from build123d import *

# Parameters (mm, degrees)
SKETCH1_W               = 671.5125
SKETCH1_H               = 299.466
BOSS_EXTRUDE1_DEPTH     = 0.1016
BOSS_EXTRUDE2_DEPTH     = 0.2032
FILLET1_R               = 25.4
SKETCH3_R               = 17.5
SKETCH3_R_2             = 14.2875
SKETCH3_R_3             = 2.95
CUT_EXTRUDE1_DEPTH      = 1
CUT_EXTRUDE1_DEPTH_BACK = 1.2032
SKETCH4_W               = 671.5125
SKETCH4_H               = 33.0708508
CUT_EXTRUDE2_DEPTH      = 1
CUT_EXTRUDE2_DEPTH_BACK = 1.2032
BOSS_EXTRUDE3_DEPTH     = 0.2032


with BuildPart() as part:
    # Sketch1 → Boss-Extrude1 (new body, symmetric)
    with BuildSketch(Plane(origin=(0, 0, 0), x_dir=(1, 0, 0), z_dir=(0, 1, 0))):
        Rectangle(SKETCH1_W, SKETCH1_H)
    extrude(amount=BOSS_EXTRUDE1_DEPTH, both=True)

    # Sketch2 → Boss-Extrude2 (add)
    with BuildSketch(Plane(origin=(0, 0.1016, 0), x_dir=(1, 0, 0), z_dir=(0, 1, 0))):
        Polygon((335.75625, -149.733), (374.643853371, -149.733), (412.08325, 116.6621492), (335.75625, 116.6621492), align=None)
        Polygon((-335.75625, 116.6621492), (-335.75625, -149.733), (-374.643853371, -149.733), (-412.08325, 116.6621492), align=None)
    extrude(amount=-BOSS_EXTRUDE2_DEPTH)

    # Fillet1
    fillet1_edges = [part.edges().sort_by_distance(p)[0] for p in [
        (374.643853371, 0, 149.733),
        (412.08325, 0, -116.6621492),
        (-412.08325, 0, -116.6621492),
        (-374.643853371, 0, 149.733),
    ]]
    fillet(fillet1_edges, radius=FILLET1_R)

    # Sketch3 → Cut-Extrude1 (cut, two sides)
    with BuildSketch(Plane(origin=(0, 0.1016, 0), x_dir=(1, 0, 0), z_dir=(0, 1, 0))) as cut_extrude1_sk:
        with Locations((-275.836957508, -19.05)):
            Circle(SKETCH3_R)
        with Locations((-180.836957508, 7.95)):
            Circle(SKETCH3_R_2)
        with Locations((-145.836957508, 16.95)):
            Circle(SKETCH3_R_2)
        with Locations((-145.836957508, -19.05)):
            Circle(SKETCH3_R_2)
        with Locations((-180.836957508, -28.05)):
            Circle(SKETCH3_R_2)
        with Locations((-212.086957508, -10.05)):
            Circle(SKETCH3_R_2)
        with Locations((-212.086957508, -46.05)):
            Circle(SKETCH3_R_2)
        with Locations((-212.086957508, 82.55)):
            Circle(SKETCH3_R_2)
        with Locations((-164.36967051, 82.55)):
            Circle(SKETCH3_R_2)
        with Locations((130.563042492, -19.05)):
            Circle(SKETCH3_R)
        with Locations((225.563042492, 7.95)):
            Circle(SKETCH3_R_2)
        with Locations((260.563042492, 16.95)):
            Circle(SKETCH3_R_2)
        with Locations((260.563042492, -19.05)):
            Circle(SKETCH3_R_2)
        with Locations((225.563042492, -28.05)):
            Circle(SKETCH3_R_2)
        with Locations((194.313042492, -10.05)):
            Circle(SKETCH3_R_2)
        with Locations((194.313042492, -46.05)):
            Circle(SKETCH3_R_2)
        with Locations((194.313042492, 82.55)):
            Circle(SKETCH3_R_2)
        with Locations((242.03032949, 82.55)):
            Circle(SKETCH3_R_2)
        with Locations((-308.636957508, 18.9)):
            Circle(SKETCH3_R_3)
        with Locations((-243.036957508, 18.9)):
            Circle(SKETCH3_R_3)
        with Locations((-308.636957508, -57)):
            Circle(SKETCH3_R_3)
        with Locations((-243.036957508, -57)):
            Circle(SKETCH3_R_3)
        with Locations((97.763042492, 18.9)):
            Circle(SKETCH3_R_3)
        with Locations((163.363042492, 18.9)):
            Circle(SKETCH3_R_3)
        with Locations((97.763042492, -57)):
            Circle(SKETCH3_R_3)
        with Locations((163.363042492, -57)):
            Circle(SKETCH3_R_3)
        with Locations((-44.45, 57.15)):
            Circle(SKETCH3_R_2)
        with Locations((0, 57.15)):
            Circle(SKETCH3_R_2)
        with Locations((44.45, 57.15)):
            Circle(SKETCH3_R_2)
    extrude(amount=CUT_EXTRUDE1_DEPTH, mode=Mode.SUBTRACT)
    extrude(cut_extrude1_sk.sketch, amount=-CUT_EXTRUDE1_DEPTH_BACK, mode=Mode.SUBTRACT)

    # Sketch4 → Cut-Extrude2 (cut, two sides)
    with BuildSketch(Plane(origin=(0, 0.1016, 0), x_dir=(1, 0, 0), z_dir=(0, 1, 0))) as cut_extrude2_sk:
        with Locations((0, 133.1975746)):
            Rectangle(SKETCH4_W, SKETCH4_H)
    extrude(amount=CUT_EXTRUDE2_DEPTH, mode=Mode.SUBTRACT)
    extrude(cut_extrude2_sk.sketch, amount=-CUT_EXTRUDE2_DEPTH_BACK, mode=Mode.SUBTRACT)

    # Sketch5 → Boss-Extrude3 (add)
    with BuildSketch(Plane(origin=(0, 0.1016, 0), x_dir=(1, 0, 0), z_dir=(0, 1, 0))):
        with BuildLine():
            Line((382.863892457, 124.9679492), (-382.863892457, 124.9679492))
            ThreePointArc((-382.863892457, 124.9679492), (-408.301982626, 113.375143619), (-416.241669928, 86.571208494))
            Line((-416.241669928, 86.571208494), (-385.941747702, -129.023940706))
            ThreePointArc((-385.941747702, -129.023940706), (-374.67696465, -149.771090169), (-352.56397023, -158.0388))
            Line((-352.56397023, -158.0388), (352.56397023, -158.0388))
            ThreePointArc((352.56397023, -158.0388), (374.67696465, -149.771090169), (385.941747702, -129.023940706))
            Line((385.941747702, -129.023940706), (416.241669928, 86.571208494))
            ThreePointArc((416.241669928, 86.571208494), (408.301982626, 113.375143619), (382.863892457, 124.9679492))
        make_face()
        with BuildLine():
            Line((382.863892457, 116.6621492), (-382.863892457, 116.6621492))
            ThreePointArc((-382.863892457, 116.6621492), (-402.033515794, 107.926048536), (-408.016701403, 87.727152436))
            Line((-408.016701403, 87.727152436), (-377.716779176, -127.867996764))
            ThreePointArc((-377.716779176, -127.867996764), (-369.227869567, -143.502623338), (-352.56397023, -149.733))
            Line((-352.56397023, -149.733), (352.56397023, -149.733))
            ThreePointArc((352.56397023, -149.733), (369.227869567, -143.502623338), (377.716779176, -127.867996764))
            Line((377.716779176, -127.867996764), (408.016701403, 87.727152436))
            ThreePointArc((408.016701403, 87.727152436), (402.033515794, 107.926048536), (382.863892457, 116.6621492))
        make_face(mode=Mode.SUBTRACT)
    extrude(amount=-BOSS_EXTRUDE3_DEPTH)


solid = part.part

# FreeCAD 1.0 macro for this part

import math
import FreeCAD as App
import Part
import Sketcher
Q = App.Units.Quantity


def edges_at(feature, points):
    """Names of the edges that pass closest to the given points."""
    edges = feature.Shape.Edges
    near = lambda p: min(range(len(edges)), key=lambda i: edges[i].distToShape(Part.Vertex(*p))[0])
    return sorted({f"Edge{near(p) + 1}" for p in points})

doc = App.newDocument("Part")
body = doc.addObject("PartDesign::Body", "Body")

sketch1 = doc.addObject("Sketcher::SketchObject", "Sketch")
body.addObject(sketch1)
sketch1.AttachmentSupport = (doc.XZ_Plane, [""])
sketch1.MapMode = "FlatFace"
sketch1.addGeometry([
    Part.LineSegment(App.Vector(-335.75625, -149.733, 0), App.Vector(-335.75625, 149.733, 0)),
    Part.LineSegment(App.Vector(-335.75625, 149.733, 0), App.Vector(335.75625, 149.733, 0)),
    Part.LineSegment(App.Vector(335.75625, 149.733, 0), App.Vector(335.75625, -149.733, 0)),
    Part.LineSegment(App.Vector(335.75625, -149.733, 0), App.Vector(-335.75625, -149.733, 0)),
], False)
sketch1.addConstraint([
    Sketcher.Constraint("Coincident", 0, 2, 1, 1),
    Sketcher.Constraint("Coincident", 1, 2, 2, 1),
    Sketcher.Constraint("Coincident", 2, 2, 3, 1),
    Sketcher.Constraint("Coincident", 3, 2, 0, 1),
    Sketcher.Constraint("Vertical", 0),
    Sketcher.Constraint("Horizontal", 1),
    Sketcher.Constraint("Vertical", 2),
    Sketcher.Constraint("Horizontal", 3),
    Sketcher.Constraint("Symmetric", 0, 2, 2, 2, -1, 1),
    Sketcher.Constraint("DistanceY", 0, 1, 0, 2, Q("11.79 in")),
    Sketcher.Constraint("DistanceX", 1, 1, 1, 2, Q("26.4375 in")),
])
pad1 = doc.addObject("PartDesign::Pad", "Pad")
body.addObject(pad1)
pad1.Profile = sketch1
pad1.Length = Q("0.008 in")
pad1.Midplane = True

sketch2 = doc.addObject("Sketcher::SketchObject", "Sketch001")
body.addObject(sketch2)
sketch2.AttachmentSupport = (doc.XZ_Plane, [""])
sketch2.MapMode = "FlatFace"
sketch2.AttachmentOffset = App.Placement(App.Vector(0, 0, -0.004 * 25.4), App.Rotation())
sketch2.addGeometry([
    Part.LineSegment(App.Vector(335.75625, 149.733, 0), App.Vector(374.643853, 149.733, 0)),
    Part.LineSegment(App.Vector(374.643853, 149.733, 0), App.Vector(412.08325, -116.662149, 0)),
    Part.LineSegment(App.Vector(412.08325, -116.662149, 0), App.Vector(335.75625, -116.662149, 0)),
    Part.LineSegment(App.Vector(335.75625, -116.662149, 0), App.Vector(335.75625, 149.733, 0)),
    Part.LineSegment(App.Vector(-335.75625, 149.733, 0), App.Vector(-335.75625, -116.662149, 0)),
    Part.LineSegment(App.Vector(-335.75625, -116.662149, 0), App.Vector(-412.08325, -116.662149, 0)),
    Part.LineSegment(App.Vector(-412.08325, -116.662149, 0), App.Vector(-374.643853, 149.733, 0)),
    Part.LineSegment(App.Vector(-374.643853, 149.733, 0), App.Vector(-335.75625, 149.733, 0)),
], False)
sketch2.addConstraint([
    Sketcher.Constraint("Coincident", 0, 2, 1, 1),
    Sketcher.Constraint("Coincident", 1, 2, 2, 1),
    Sketcher.Constraint("Coincident", 2, 2, 3, 1),
    Sketcher.Constraint("Coincident", 3, 2, 0, 1),
    Sketcher.Constraint("Coincident", 4, 2, 5, 1),
    Sketcher.Constraint("Coincident", 5, 2, 6, 1),
    Sketcher.Constraint("Coincident", 6, 2, 7, 1),
    Sketcher.Constraint("Coincident", 7, 2, 4, 1),
    Sketcher.Constraint("Horizontal", 0),
    Sketcher.Constraint("Horizontal", 2),
    Sketcher.Constraint("Vertical", 3),
    Sketcher.Constraint("Vertical", 4),
    Sketcher.Constraint("Horizontal", 5),
    Sketcher.Constraint("Horizontal", 7),
    Sketcher.Constraint("Symmetric", 2, 2, 4, 2, -2),
    Sketcher.Constraint("Symmetric", 0, 2, 6, 2, -2),
    Sketcher.Constraint("Equal", 2, 5),
    Sketcher.Constraint("Angle", 1, Q("-82 deg")),
    Sketcher.Constraint("DistanceX", 2, 2, 2, 1, Q("3.005 in")),
    Sketcher.Constraint("DistanceY", -1, 1, 0, 2, Q("5.895 in")),
    Sketcher.Constraint("DistanceX", -1, 1, 2, 2, Q("13.21875 in")),
    Sketcher.Constraint("DistanceY", 3, 1, 3, 2, 266.395149),
])
pad2 = doc.addObject("PartDesign::Pad", "Pad001")
body.addObject(pad2)
pad2.Profile = sketch2
pad2.Length = Q("0.008 in")
doc.recompute()

fillet = doc.addObject("PartDesign::Fillet", "Fillet")
body.addObject(fillet)
fillet.Base = (pad2, edges_at(pad2, [
    (374.644, 0, 149.733),
    (412.083, 0, -116.662),
    (-412.083, 0, -116.662),
    (-374.644, 0, 149.733),
]))
fillet.Radius = Q("1 in")

sketch3 = doc.addObject("Sketcher::SketchObject", "Sketch002")
body.addObject(sketch3)
sketch3.AttachmentSupport = (doc.XZ_Plane, [""])
sketch3.MapMode = "FlatFace"
sketch3.AttachmentOffset = App.Placement(App.Vector(0, 0, -0.004 * 25.4), App.Rotation())
sketch3.addGeometry([
    Part.Circle(App.Vector(-275.836958, 19.05, 0), App.Vector(0, 0, 1), 17.5),
    Part.Circle(App.Vector(-180.836958, -7.95, 0), App.Vector(0, 0, 1), 14.2875),
    Part.Circle(App.Vector(-145.836958, -16.95, 0), App.Vector(0, 0, 1), 14.2875),
    Part.Circle(App.Vector(-145.836958, 19.05, 0), App.Vector(0, 0, 1), 14.2875),
    Part.Circle(App.Vector(-180.836958, 28.05, 0), App.Vector(0, 0, 1), 14.2875),
    Part.Circle(App.Vector(-212.086958, 10.05, 0), App.Vector(0, 0, 1), 14.2875),
    Part.Circle(App.Vector(-212.086958, 46.05, 0), App.Vector(0, 0, 1), 14.2875),
    Part.Circle(App.Vector(-212.086958, -82.55, 0), App.Vector(0, 0, 1), 14.2875),
    Part.Circle(App.Vector(-164.369671, -82.55, 0), App.Vector(0, 0, 1), 14.2875),
    Part.Circle(App.Vector(130.563042, 19.05, 0), App.Vector(0, 0, 1), 17.5),
    Part.Circle(App.Vector(225.563042, -7.95, 0), App.Vector(0, 0, 1), 14.2875),
    Part.Circle(App.Vector(260.563042, -16.95, 0), App.Vector(0, 0, 1), 14.2875),
    Part.Circle(App.Vector(260.563042, 19.05, 0), App.Vector(0, 0, 1), 14.2875),
    Part.Circle(App.Vector(225.563042, 28.05, 0), App.Vector(0, 0, 1), 14.2875),
    Part.Circle(App.Vector(194.313042, 10.05, 0), App.Vector(0, 0, 1), 14.2875),
    Part.Circle(App.Vector(194.313042, 46.05, 0), App.Vector(0, 0, 1), 14.2875),
    Part.Circle(App.Vector(194.313042, -82.55, 0), App.Vector(0, 0, 1), 14.2875),
    Part.Circle(App.Vector(242.030329, -82.55, 0), App.Vector(0, 0, 1), 14.2875),
    Part.Circle(App.Vector(-308.636958, -18.9, 0), App.Vector(0, 0, 1), 2.95),
    Part.Circle(App.Vector(-243.036958, -18.9, 0), App.Vector(0, 0, 1), 2.95),
    Part.Circle(App.Vector(-308.636958, 57, 0), App.Vector(0, 0, 1), 2.95),
    Part.Circle(App.Vector(-243.036958, 57, 0), App.Vector(0, 0, 1), 2.95),
    Part.Circle(App.Vector(97.763042, -18.9, 0), App.Vector(0, 0, 1), 2.95),
    Part.Circle(App.Vector(163.363042, -18.9, 0), App.Vector(0, 0, 1), 2.95),
    Part.Circle(App.Vector(97.763042, 57, 0), App.Vector(0, 0, 1), 2.95),
    Part.Circle(App.Vector(163.363042, 57, 0), App.Vector(0, 0, 1), 2.95),
    Part.Circle(App.Vector(-44.45, -57.15, 0), App.Vector(0, 0, 1), 14.2875),
    Part.Circle(App.Vector(0, -57.15, 0), App.Vector(0, 0, 1), 14.2875),
    Part.Circle(App.Vector(44.45, -57.15, 0), App.Vector(0, 0, 1), 14.2875),
], False)
sketch3.addConstraint([
    Sketcher.Constraint("Equal", 1, 2),
    Sketcher.Constraint("Equal", 2, 3),
    Sketcher.Constraint("Equal", 3, 4),
    Sketcher.Constraint("Equal", 4, 5),
    Sketcher.Constraint("Equal", 5, 6),
    Sketcher.Constraint("Equal", 6, 7),
    Sketcher.Constraint("Equal", 7, 8),
    Sketcher.Constraint("Equal", 0, 9),
    Sketcher.Constraint("Equal", 8, 10),
    Sketcher.Constraint("Equal", 10, 11),
    Sketcher.Constraint("Equal", 11, 12),
    Sketcher.Constraint("Equal", 12, 13),
    Sketcher.Constraint("Equal", 13, 14),
    Sketcher.Constraint("Equal", 14, 15),
    Sketcher.Constraint("Equal", 15, 16),
    Sketcher.Constraint("Equal", 16, 17),
    Sketcher.Constraint("Equal", 18, 19),
    Sketcher.Constraint("Equal", 19, 20),
    Sketcher.Constraint("Equal", 20, 21),
    Sketcher.Constraint("Equal", 21, 22),
    Sketcher.Constraint("Equal", 22, 23),
    Sketcher.Constraint("Equal", 23, 24),
    Sketcher.Constraint("Equal", 24, 25),
    Sketcher.Constraint("Equal", 17, 26),
    Sketcher.Constraint("Equal", 26, 27),
    Sketcher.Constraint("Equal", 27, 28),
    Sketcher.Constraint("Symmetric", 26, 3, 28, 3, -2),
    Sketcher.Constraint("PointOnObject", 27, 3, -2),
    Sketcher.Constraint("Horizontal", 0, 3, 3, 3),
    Sketcher.Constraint("Horizontal", 7, 3, 8, 3),
    Sketcher.Constraint("Horizontal", 3, 3, 9, 3),
    Sketcher.Constraint("Horizontal", 1, 3, 10, 3),
    Sketcher.Constraint("Horizontal", 2, 3, 11, 3),
    Sketcher.Constraint("Horizontal", 9, 3, 12, 3),
    Sketcher.Constraint("Horizontal", 4, 3, 13, 3),
    Sketcher.Constraint("Horizontal", 5, 3, 14, 3),
    Sketcher.Constraint("Horizontal", 6, 3, 15, 3),
    Sketcher.Constraint("Horizontal", 8, 3, 16, 3),
    Sketcher.Constraint("Horizontal", 16, 3, 17, 3),
    Sketcher.Constraint("Horizontal", 18, 3, 19, 3),
    Sketcher.Constraint("Horizontal", 20, 3, 21, 3),
    Sketcher.Constraint("Horizontal", 19, 3, 22, 3),
    Sketcher.Constraint("Horizontal", 22, 3, 23, 3),
    Sketcher.Constraint("Horizontal", 21, 3, 24, 3),
    Sketcher.Constraint("Horizontal", 24, 3, 25, 3),
    Sketcher.Constraint("Horizontal", 26, 3, 27, 3),
    Sketcher.Constraint("Vertical", 2, 3, 3, 3),
    Sketcher.Constraint("Vertical", 1, 3, 4, 3),
    Sketcher.Constraint("Vertical", 5, 3, 6, 3),
    Sketcher.Constraint("Vertical", 6, 3, 7, 3),
    Sketcher.Constraint("Vertical", 11, 3, 12, 3),
    Sketcher.Constraint("Vertical", 10, 3, 13, 3),
    Sketcher.Constraint("Vertical", 14, 3, 15, 3),
    Sketcher.Constraint("Vertical", 15, 3, 16, 3),
    Sketcher.Constraint("Vertical", 18, 3, 20, 3),
    Sketcher.Constraint("Vertical", 19, 3, 21, 3),
    Sketcher.Constraint("Vertical", 22, 3, 24, 3),
    Sketcher.Constraint("Vertical", 23, 3, 25, 3),
    Sketcher.Constraint("Diameter", 1, Q("1.125 in")),
    Sketcher.Constraint("DistanceY", 7, 3, 0, 3, Q("4 in")),
    Sketcher.Constraint("DistanceX", 1, 3, 10, 3, Q("16 in")),
    Sketcher.Constraint("DistanceX", 2, 3, 11, 3, Q("16 in")),
    Sketcher.Constraint("DistanceY", 8, 3, 26, 3, Q("1 in")),
    Sketcher.Constraint("DistanceX", 26, 3, 28, 3, Q("3.5 in")),
    Sketcher.Constraint("Diameter", 0, 35.0),
    Sketcher.Constraint("Diameter", 18, 5.9),
    Sketcher.Constraint("DistanceY", -1, 1, 0, 3, Q("0.75 in")),
    Sketcher.Constraint("DistanceY", 1, 3, -1, 1, 7.95),
    Sketcher.Constraint("DistanceY", 2, 3, -1, 1, 16.95),
    Sketcher.Constraint("DistanceY", -1, 1, 4, 3, 28.05),
    Sketcher.Constraint("DistanceY", -1, 1, 5, 3, 10.05),
    Sketcher.Constraint("DistanceY", -1, 1, 6, 3, 46.05),
    Sketcher.Constraint("DistanceY", 18, 3, -1, 1, 18.9),
    Sketcher.Constraint("DistanceY", -1, 1, 20, 3, 57.0),
    Sketcher.Constraint("DistanceX", 0, 3, 1, 3, 95.0),
    Sketcher.Constraint("DistanceX", 1, 3, 2, 3, 35.0),
    Sketcher.Constraint("DistanceX", 5, 3, 1, 3, 31.25),
    Sketcher.Constraint("DistanceX", 3, 3, 9, 3, 276.4),
    Sketcher.Constraint("DistanceX", 14, 3, 10, 3, 31.25),
    Sketcher.Constraint("DistanceX", 18, 3, 0, 3, 32.8),
    Sketcher.Constraint("DistanceX", 19, 3, 5, 3, 30.95),
    Sketcher.Constraint("DistanceX", 22, 3, 9, 3, 32.8),
    Sketcher.Constraint("DistanceX", 23, 3, 14, 3, 30.95),
    Sketcher.Constraint("DistanceX", 8, 3, -1, 1, 164.369671),
    Sketcher.Constraint("DistanceX", -1, 1, 17, 3, 242.030329),
    Sketcher.Constraint("DistanceX", 0, 3, -1, 1, 275.836958),
])
pocket1 = doc.addObject("PartDesign::Pocket", "Pocket")
body.addObject(pocket1)
pocket1.Profile = sketch3
pocket1.Type = "ThroughAll"
pocket1.Midplane = True

sketch4 = doc.addObject("Sketcher::SketchObject", "Sketch003")
body.addObject(sketch4)
sketch4.AttachmentSupport = (doc.XZ_Plane, [""])
sketch4.MapMode = "FlatFace"
sketch4.AttachmentOffset = App.Placement(App.Vector(0, 0, -0.004 * 25.4), App.Rotation())
sketch4.addGeometry([
    Part.LineSegment(App.Vector(-335.75625, -149.733, 0), App.Vector(-335.75625, -116.662149, 0)),
    Part.LineSegment(App.Vector(-335.75625, -116.662149, 0), App.Vector(335.75625, -116.662149, 0)),
    Part.LineSegment(App.Vector(335.75625, -116.662149, 0), App.Vector(335.75625, -149.733, 0)),
    Part.LineSegment(App.Vector(335.75625, -149.733, 0), App.Vector(-335.75625, -149.733, 0)),
], False)
sketch4.addConstraint([
    Sketcher.Constraint("Coincident", 0, 2, 1, 1),
    Sketcher.Constraint("Coincident", 1, 2, 2, 1),
    Sketcher.Constraint("Coincident", 2, 2, 3, 1),
    Sketcher.Constraint("Coincident", 3, 2, 0, 1),
    Sketcher.Constraint("Vertical", 0),
    Sketcher.Constraint("Horizontal", 1),
    Sketcher.Constraint("Vertical", 2),
    Sketcher.Constraint("Horizontal", 3),
    Sketcher.Constraint("DistanceX", 1, 1, 1, 2, Q("26.4375 in")),
    Sketcher.Constraint("DistanceX", 0, 2, -1, 1, Q("13.21875 in")),
    Sketcher.Constraint("DistanceY", 2, 2, -1, 1, Q("5.895 in")),
    Sketcher.Constraint("DistanceY", 0, 1, 0, 2, 33.070851),
])
pocket2 = doc.addObject("PartDesign::Pocket", "Pocket001")
body.addObject(pocket2)
pocket2.Profile = sketch4
pocket2.Type = "ThroughAll"
pocket2.Midplane = True

sketch5 = doc.addObject("Sketcher::SketchObject", "Sketch004")
body.addObject(sketch5)
sketch5.AttachmentSupport = (doc.XZ_Plane, [""])
sketch5.MapMode = "FlatFace"
sketch5.AttachmentOffset = App.Placement(App.Vector(0, 0, -0.004 * 25.4), App.Rotation())
sketch5.addGeometry([
    Part.LineSegment(App.Vector(382.863892, -124.967949, 0), App.Vector(-382.863892, -124.967949, 0)),
    Part.ArcOfCircle(Part.Circle(App.Vector(-382.863892, -91.262149, 0), App.Vector(0, 0, 1), 33.7058), math.radians(172), math.radians(270)),
    Part.LineSegment(App.Vector(-416.24167, -86.571208, 0), App.Vector(-385.941748, 129.023941, 0)),
    Part.ArcOfCircle(Part.Circle(App.Vector(-352.56397, 124.333, 0), App.Vector(0, 0, 1), 33.7058), math.radians(90), math.radians(172)),
    Part.LineSegment(App.Vector(-352.56397, 158.0388, 0), App.Vector(352.56397, 158.0388, 0)),
    Part.ArcOfCircle(Part.Circle(App.Vector(352.56397, 124.333, 0), App.Vector(0, 0, 1), 33.7058), math.radians(8), math.radians(90)),
    Part.LineSegment(App.Vector(385.941748, 129.023941, 0), App.Vector(416.24167, -86.571208, 0)),
    Part.ArcOfCircle(Part.Circle(App.Vector(382.863892, -91.262149, 0), App.Vector(0, 0, 1), 33.7058), math.radians(-90), math.radians(8)),
    Part.LineSegment(App.Vector(-382.863892, -116.662149, 0), App.Vector(382.863892, -116.662149, 0)),
    Part.ArcOfCircle(Part.Circle(App.Vector(382.863892, -91.262149, 0), App.Vector(0, 0, 1), 25.4), math.radians(-90), math.radians(8)),
    Part.LineSegment(App.Vector(408.016701, -87.727152, 0), App.Vector(377.716779, 127.867997, 0)),
    Part.ArcOfCircle(Part.Circle(App.Vector(352.56397, 124.333, 0), App.Vector(0, 0, 1), 25.4), math.radians(8), math.radians(90)),
    Part.LineSegment(App.Vector(352.56397, 149.733, 0), App.Vector(-352.56397, 149.733, 0)),
    Part.ArcOfCircle(Part.Circle(App.Vector(-352.56397, 124.333, 0), App.Vector(0, 0, 1), 25.4), math.radians(90), math.radians(172)),
    Part.LineSegment(App.Vector(-377.716779, 127.867997, 0), App.Vector(-408.016701, -87.727152, 0)),
    Part.ArcOfCircle(Part.Circle(App.Vector(-382.863892, -91.262149, 0), App.Vector(0, 0, 1), 25.4), math.radians(172), math.radians(270)),
], False)
sketch5.addConstraint([
    Sketcher.Constraint("Tangent", 0, 2, 1, 2),
    Sketcher.Constraint("Tangent", 1, 1, 2, 1),
    Sketcher.Constraint("Tangent", 2, 2, 3, 2),
    Sketcher.Constraint("Tangent", 3, 1, 4, 1),
    Sketcher.Constraint("Tangent", 4, 2, 5, 2),
    Sketcher.Constraint("Tangent", 5, 1, 6, 1),
    Sketcher.Constraint("Tangent", 6, 2, 7, 2),
    Sketcher.Constraint("Tangent", 7, 1, 0, 1),
    Sketcher.Constraint("Tangent", 8, 2, 9, 1),
    Sketcher.Constraint("Tangent", 9, 2, 10, 1),
    Sketcher.Constraint("Tangent", 10, 2, 11, 1),
    Sketcher.Constraint("Tangent", 11, 2, 12, 1),
    Sketcher.Constraint("Tangent", 12, 2, 13, 1),
    Sketcher.Constraint("Tangent", 13, 2, 14, 1),
    Sketcher.Constraint("Tangent", 14, 2, 15, 1),
    Sketcher.Constraint("Tangent", 15, 2, 8, 1),
    Sketcher.Constraint("Horizontal", 0),
    Sketcher.Constraint("Horizontal", 4),
    Sketcher.Constraint("Horizontal", 8),
    Sketcher.Constraint("Horizontal", 12),
    Sketcher.Constraint("Coincident", 9, 3, 7, 3),
    Sketcher.Constraint("Coincident", 11, 3, 5, 3),
    Sketcher.Constraint("Coincident", 13, 3, 3, 3),
    Sketcher.Constraint("Coincident", 15, 3, 1, 3),
    Sketcher.Constraint("Equal", 1, 3),
    Sketcher.Constraint("Equal", 3, 5),
    Sketcher.Constraint("Equal", 5, 7),
    Sketcher.Constraint("Equal", 9, 11),
    Sketcher.Constraint("Symmetric", 2, 2, 5, 1, -2),
    Sketcher.Constraint("Radius", 9, Q("1 in")),
    Sketcher.Constraint("Angle", 2, Q("82 deg")),
    Sketcher.Constraint("Radius", 1, Q("1.327 in")),
    Sketcher.Constraint("DistanceY", -1, 1, 3, 3, Q("4.895 in")),
    Sketcher.Constraint("DistanceX", 4, 1, 4, 2, 705.12794),
    Sketcher.Constraint("DistanceX", -1, 1, 9, 2, 408.016701),
])
pad3 = doc.addObject("PartDesign::Pad", "Pad002")
body.addObject(pad3)
pad3.Profile = sketch5
pad3.Length = Q("0.008 in")

doc.recompute()
